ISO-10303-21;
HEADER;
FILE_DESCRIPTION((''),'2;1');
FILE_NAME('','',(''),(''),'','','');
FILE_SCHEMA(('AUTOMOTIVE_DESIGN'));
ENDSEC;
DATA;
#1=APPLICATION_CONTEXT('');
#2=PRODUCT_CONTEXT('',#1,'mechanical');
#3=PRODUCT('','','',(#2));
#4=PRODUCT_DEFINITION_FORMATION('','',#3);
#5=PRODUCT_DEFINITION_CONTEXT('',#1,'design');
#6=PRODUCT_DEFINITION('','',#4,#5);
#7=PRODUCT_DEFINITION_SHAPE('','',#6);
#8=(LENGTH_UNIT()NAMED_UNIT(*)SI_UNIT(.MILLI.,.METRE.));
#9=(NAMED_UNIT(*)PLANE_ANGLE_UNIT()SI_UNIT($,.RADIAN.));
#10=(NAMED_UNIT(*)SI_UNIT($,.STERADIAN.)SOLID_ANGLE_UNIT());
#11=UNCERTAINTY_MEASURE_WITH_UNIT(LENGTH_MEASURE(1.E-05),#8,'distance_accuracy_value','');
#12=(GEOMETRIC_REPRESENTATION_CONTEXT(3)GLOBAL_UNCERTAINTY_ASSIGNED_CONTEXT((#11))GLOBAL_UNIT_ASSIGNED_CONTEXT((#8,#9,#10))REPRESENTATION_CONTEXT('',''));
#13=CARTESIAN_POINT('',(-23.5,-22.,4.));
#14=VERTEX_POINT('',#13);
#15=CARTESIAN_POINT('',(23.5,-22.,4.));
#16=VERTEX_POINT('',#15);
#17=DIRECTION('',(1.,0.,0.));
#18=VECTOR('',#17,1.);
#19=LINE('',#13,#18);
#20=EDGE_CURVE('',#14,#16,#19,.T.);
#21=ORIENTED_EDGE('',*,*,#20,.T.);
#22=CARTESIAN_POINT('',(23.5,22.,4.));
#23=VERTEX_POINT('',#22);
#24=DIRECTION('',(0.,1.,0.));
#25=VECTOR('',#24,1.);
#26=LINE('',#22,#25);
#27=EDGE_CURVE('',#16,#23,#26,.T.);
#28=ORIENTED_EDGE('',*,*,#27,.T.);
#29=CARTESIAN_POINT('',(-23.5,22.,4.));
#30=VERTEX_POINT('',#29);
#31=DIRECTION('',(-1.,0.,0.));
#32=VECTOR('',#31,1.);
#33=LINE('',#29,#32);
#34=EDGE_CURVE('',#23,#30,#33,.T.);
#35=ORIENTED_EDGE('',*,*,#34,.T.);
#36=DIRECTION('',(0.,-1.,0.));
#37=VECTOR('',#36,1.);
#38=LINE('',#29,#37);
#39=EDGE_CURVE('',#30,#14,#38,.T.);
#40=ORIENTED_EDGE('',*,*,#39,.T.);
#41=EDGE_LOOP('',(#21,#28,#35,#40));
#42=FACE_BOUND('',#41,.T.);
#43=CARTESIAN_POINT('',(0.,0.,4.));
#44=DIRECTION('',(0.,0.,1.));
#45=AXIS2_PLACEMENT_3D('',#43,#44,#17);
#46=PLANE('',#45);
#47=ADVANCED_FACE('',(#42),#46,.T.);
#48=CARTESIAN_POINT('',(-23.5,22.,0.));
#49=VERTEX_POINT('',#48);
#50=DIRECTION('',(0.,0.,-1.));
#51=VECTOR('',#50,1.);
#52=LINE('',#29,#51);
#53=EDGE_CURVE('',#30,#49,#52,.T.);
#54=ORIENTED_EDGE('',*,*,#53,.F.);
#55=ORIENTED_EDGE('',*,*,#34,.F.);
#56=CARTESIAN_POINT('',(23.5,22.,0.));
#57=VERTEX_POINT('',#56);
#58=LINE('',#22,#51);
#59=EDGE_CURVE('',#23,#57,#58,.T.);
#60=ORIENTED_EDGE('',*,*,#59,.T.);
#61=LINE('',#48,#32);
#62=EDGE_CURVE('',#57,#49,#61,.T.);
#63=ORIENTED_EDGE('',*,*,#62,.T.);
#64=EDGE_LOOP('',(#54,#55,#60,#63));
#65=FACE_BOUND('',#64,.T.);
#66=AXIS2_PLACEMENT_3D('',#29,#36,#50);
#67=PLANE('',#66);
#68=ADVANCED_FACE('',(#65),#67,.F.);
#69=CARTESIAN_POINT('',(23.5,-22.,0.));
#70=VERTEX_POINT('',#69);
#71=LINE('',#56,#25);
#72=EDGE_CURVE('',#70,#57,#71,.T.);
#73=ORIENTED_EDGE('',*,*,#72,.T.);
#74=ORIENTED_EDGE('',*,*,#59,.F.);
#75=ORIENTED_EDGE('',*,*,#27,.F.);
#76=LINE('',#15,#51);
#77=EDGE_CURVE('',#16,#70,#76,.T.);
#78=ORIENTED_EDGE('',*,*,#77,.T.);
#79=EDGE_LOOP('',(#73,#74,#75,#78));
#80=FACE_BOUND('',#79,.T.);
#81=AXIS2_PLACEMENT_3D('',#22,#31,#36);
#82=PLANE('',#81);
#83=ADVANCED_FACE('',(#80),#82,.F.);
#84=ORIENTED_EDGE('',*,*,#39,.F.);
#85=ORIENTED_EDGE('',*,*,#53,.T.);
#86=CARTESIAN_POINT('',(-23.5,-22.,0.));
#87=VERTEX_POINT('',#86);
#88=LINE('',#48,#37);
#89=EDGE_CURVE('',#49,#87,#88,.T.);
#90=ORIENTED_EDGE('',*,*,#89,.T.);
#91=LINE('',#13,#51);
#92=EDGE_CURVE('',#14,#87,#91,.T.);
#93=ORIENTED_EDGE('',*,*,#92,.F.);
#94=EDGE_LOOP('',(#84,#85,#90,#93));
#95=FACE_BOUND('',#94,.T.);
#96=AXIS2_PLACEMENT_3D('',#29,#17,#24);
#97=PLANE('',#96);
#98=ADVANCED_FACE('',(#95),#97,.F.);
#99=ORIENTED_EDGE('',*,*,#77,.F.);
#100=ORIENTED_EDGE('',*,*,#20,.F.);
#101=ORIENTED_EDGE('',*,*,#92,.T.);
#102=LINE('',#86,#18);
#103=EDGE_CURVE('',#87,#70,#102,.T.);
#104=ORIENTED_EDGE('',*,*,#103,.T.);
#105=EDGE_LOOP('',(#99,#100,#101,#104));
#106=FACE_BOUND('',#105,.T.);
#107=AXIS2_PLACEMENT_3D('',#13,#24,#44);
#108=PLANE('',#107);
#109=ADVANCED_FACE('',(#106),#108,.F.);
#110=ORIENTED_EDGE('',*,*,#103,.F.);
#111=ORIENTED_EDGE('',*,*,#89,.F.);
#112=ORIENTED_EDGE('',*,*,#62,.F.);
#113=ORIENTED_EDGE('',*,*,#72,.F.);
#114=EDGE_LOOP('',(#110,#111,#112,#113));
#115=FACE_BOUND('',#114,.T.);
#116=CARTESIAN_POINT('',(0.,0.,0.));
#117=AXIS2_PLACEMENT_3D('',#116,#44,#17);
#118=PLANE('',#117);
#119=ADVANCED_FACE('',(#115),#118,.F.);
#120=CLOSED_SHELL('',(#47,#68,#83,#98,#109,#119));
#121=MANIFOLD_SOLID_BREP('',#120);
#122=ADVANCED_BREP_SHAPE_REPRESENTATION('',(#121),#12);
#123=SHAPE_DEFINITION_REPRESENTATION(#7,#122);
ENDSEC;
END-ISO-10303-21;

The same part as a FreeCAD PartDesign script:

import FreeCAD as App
import Part
import Sketcher
from FreeCAD import Vector


def add_polygon(sketch, points):
    """Adds a closed chain of lines whose ends are joined by coincident constraints."""
    first, n = sketch.GeometryCount, len(points)
    for a, b in zip(points, points[1:] + points[:1]):
        sketch.addGeometry(Part.LineSegment(App.Vector(*a, 0), App.Vector(*b, 0)), False)
    for i in range(n):
        sketch.addConstraint(Sketcher.Constraint("Coincident", first + i, 2, first + (i + 1) % n, 1))

doc = App.newDocument("Part")
body = doc.addObject("PartDesign::Body", "Body")

# Sketch on XY plane
sketch1 = body.newObject("Sketcher::SketchObject", "Sketch")
sketch1.AttachmentSupport = (doc.getObject("XY_Plane"), [""])
sketch1.MapMode = "FlatFace"
add_polygon(sketch1, [(-24, 22), (-24, -22), (24, -22), (24, 22)])  # lines 0-3
sketch1.addConstraint([
    Sketcher.Constraint("Vertical", 0),
    Sketcher.Constraint("Horizontal", 1),
    Sketcher.Constraint("Vertical", 2),
    Sketcher.Constraint("Horizontal", 3),
    Sketcher.Constraint("Symmetric", 0, 2, 2, 2, -1, 1),
    Sketcher.Constraint("DistanceX", 1, 1, 1, 2, 47.0),
    Sketcher.Constraint("DistanceY", 0, 2, 0, 1, 44.0),
])
pad1 = body.newObject("PartDesign::Pad", "Pad")
pad1.Profile = sketch1
pad1.Length = 4

doc.recompute()
